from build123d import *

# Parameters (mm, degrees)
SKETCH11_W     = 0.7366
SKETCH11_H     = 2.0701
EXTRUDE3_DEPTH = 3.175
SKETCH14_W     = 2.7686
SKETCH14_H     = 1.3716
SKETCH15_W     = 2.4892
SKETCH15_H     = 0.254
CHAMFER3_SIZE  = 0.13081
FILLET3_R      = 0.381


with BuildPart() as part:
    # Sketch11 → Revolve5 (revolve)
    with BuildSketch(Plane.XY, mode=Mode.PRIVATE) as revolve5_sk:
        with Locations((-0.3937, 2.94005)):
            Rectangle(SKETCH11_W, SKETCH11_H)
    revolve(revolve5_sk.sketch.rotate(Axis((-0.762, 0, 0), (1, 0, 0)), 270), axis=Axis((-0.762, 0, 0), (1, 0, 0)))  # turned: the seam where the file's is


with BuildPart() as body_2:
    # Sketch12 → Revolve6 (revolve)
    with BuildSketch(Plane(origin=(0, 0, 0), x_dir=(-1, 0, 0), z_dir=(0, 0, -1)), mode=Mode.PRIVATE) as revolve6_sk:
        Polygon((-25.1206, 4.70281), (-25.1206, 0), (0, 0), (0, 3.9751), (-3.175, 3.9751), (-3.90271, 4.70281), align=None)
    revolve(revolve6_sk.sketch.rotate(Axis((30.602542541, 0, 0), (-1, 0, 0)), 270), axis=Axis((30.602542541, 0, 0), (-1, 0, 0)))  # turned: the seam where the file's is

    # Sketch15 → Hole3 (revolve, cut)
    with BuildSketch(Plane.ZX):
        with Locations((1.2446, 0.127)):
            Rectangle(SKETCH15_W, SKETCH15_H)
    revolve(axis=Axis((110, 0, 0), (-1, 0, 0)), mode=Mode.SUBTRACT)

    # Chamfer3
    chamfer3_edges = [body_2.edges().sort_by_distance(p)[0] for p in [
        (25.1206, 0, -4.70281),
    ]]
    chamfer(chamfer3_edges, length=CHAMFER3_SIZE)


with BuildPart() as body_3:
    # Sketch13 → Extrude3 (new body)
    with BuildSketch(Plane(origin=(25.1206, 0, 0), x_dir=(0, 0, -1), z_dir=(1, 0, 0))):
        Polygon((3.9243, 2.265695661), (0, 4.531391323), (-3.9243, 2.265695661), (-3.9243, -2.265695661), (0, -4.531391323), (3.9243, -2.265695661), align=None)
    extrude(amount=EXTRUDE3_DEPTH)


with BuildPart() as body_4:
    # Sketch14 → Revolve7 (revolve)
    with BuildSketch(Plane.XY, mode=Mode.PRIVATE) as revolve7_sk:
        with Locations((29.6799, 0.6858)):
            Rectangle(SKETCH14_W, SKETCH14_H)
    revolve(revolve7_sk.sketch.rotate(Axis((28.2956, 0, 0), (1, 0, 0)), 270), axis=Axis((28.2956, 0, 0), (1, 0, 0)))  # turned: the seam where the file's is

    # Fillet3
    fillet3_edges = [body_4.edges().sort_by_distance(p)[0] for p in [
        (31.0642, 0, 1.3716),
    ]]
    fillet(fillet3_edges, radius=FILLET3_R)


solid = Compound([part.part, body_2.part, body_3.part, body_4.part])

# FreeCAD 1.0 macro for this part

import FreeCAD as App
import Part
import Sketcher

V = App.Vector
Q = App.Units.Quantity


def edges_at(feature, points):
    """Names of the edges that pass closest to the given points."""
    edges = feature.Shape.Edges
    near = lambda p: min(range(len(edges)), key=lambda i: edges[i].distToShape(Part.Vertex(*p))[0])
    return sorted({f"Edge{near(p) + 1}" for p in points})

doc = App.newDocument("Part")
body = doc.addObject("PartDesign::Body", "Body")

# Sketch on XY plane
sketch1 = body.newObject("Sketcher::SketchObject", "Sketch")
sketch1.AttachmentSupport = (doc.getObject("XY_Plane"), [""])
sketch1.MapMode = "FlatFace"
sketch1.addGeometry([
    Part.LineSegment(V(-0.762, 3.9751, 0), V(-0.762, 1.905, 0)),
    Part.LineSegment(V(-0.762, 1.905, 0), V(-0.0254, 1.905, 0)),
    Part.LineSegment(V(-0.0254, 1.905, 0), V(-0.0254, 3.9751, 0)),
    Part.LineSegment(V(-0.0254, 3.9751, 0), V(-0.762, 3.9751, 0)),
], False)
sketch1.addConstraint([
    Sketcher.Constraint("Coincident", 0, 2, 1, 1),
    Sketcher.Constraint("Coincident", 1, 2, 2, 1),
    Sketcher.Constraint("Coincident", 2, 2, 3, 1),
    Sketcher.Constraint("Coincident", 3, 2, 0, 1),
    Sketcher.Constraint("Vertical", 0),
    Sketcher.Constraint("Horizontal", 1),
    Sketcher.Constraint("Vertical", 2),
    Sketcher.Constraint("Horizontal", 3),
    Sketcher.Constraint("DistanceX", 1, 1, 1, 2, Q("0.029 in")),
    Sketcher.Constraint("DistanceX", 0, 2, -1, 1, Q("0.03 in")),
    Sketcher.Constraint("DistanceY", 0, 2, 0, 1, Q("0.0815 in")),
    Sketcher.Constraint("DistanceY", -1, 1, 0, 2, Q("0.075 in")),
])
revolution = body.newObject("PartDesign::Revolution", "Revolution")
revolution.Profile = sketch1
revolution.ReferenceAxis = (sketch1, ["H_Axis"])
revolution.Angle = 360
body2 = doc.addObject("PartDesign::Body", "Body001")

# Sketch on XY plane
sketch2 = body2.newObject("Sketcher::SketchObject", "Sketch001")
sketch2.AttachmentSupport = (doc.getObject("XY_Plane001"), [""])
sketch2.MapMode = "FlatFace"
sketch2.addGeometry([
    Part.LineSegment(V(25.1206, 4.70281, 0), V(25.1206, 0, 0)),  # 0
    Part.LineSegment(V(25.1206, 0, 0), V(0, 0, 0)),  # 1
    Part.LineSegment(V(0, 0, 0), V(0, 3.9751, 0)),  # 2
    Part.LineSegment(V(0, 3.9751, 0), V(3.175, 3.9751, 0)),  # 3
    Part.LineSegment(V(3.175, 3.9751, 0), V(3.90271, 4.70281, 0)),  # 4
    Part.LineSegment(V(3.90271, 4.70281, 0), V(25.1206, 4.70281, 0)),  # 5
], False)
sketch2.addConstraint([
    Sketcher.Constraint("Coincident", 0, 2, 1, 1),
    Sketcher.Constraint("Coincident", 1, 2, 2, 1),
    Sketcher.Constraint("Coincident", 2, 2, 3, 1),
    Sketcher.Constraint("Coincident", 3, 2, 4, 1),
    Sketcher.Constraint("Coincident", 4, 2, 5, 1),
    Sketcher.Constraint("Coincident", 5, 2, 0, 1),
    Sketcher.Constraint("Vertical", 0),
    Sketcher.Constraint("Horizontal", 1),
    Sketcher.Constraint("Vertical", 2),
    Sketcher.Constraint("Horizontal", 3),
    Sketcher.Constraint("Horizontal", 5),
    Sketcher.Constraint("Coincident", 1, 2, -1, 1),
    Sketcher.Constraint("Angle", 4, Q("45 deg")),
    Sketcher.Constraint("DistanceX", 1, 2, 1, 1, Q("0.989 in")),
    Sketcher.Constraint("DistanceX", 3, 1, 3, 2, Q("0.125 in")),
    Sketcher.Constraint("DistanceY", 2, 1, 2, 2, Q("0.1565 in")),
    Sketcher.Constraint("DistanceX", 5, 1, 5, 2, 21.21789),
])
revolution2 = body2.newObject("PartDesign::Revolution", "Revolution001")
revolution2.Profile = sketch2
revolution2.ReferenceAxis = (sketch2, ["H_Axis"])
revolution2.Angle = 360

# Sketch on XZ plane
sketch3 = body2.newObject("Sketcher::SketchObject", "Sketch002")
sketch3.AttachmentSupport = (doc.getObject("XZ_Plane001"), [""])
sketch3.MapMode = "FlatFace"
sketch3.addGeometry([
    Part.LineSegment(V(0.254, 0, 0), V(0, 0, 0)),
    Part.LineSegment(V(0, 0, 0), V(0, 2.4892, 0)),
    Part.LineSegment(V(0, 2.4892, 0), V(0.254, 2.4892, 0)),
    Part.LineSegment(V(0.254, 2.4892, 0), V(0.254, 0, 0)),
], False)
sketch3.addConstraint([
    Sketcher.Constraint("Coincident", 0, 2, 1, 1),
    Sketcher.Constraint("Coincident", 1, 2, 2, 1),
    Sketcher.Constraint("Coincident", 2, 2, 3, 1),
    Sketcher.Constraint("Coincident", 3, 2, 0, 1),
    Sketcher.Constraint("Horizontal", 0),
    Sketcher.Constraint("Vertical", 1),
    Sketcher.Constraint("Horizontal", 2),
    Sketcher.Constraint("Vertical", 3),
    Sketcher.Constraint("Coincident", 0, 2, -1, 1),
    Sketcher.Constraint("DistanceX", 0, 2, 0, 1, Q("0.01 in")),
    Sketcher.Constraint("DistanceY", 1, 1, 1, 2, Q("0.098 in")),
])
groove = body2.newObject("PartDesign::Groove", "Groove")
groove.Profile = sketch3
groove.ReferenceAxis = (sketch3, ["H_Axis"])
groove.Angle = 360
doc.recompute()

chamfer = body2.newObject("PartDesign::Chamfer", "Chamfer")
chamfer.Base = (groove, edges_at(groove, [(25.121, 0, -4.703)]))
chamfer.Size = 0.13081
body3 = doc.addObject("PartDesign::Body", "Body002")

# Sketch on YZ plane
sketch4 = body3.newObject("Sketcher::SketchObject", "Sketch003")
sketch4.AttachmentSupport = (doc.getObject("YZ_Plane002"), [""])
sketch4.MapMode = "FlatFace"
sketch4.AttachmentOffset = App.Placement(V(0, 0, 0.989 * 25.4), App.Rotation())
sketch4.addGeometry([
    Part.LineSegment(V(2.265696, -3.9243, 0), V(4.531391, 0, 0)),  # 0
    Part.LineSegment(V(4.531391, 0, 0), V(2.265696, 3.9243, 0)),  # 1
    Part.LineSegment(V(2.265696, 3.9243, 0), V(-2.265696, 3.9243, 0)),  # 2
    Part.LineSegment(V(-2.265696, 3.9243, 0), V(-4.531391, 0, 0)),  # 3
    Part.LineSegment(V(-4.531391, 0, 0), V(-2.265696, -3.9243, 0)),  # 4
    Part.LineSegment(V(-2.265696, -3.9243, 0), V(2.265696, -3.9243, 0)),  # 5
], False)
sketch4.addConstraint([
    Sketcher.Constraint("Coincident", 0, 2, 1, 1),
    Sketcher.Constraint("Coincident", 1, 2, 2, 1),
    Sketcher.Constraint("Coincident", 2, 2, 3, 1),
    Sketcher.Constraint("Coincident", 3, 2, 4, 1),
    Sketcher.Constraint("Coincident", 4, 2, 5, 1),
    Sketcher.Constraint("Coincident", 5, 2, 0, 1),
    Sketcher.Constraint("Horizontal", 2),
    Sketcher.Constraint("Horizontal", 5),
    Sketcher.Constraint("Symmetric", 0, 2, 3, 2, -1, 1),
    Sketcher.Constraint("Symmetric", 1, 2, 4, 2, -1, 1),
    Sketcher.Constraint("PointOnObject", 0, 2, -1),
    Sketcher.Constraint("Parallel", 0, 3),
    Sketcher.Constraint("Vertical", 2, 2, 4, 2),
    Sketcher.Constraint("Angle", 0, Q("60 deg")),
    Sketcher.Constraint("DistanceY", 4, 2, 2, 2, Q("0.309 in")),
    Sketcher.Constraint("DistanceX", 2, 2, 2, 1, 4.531391),
])
pad1 = body3.newObject("PartDesign::Pad", "Pad")
pad1.Profile = sketch4
pad1.Length = Q("0.125 in")
body4 = doc.addObject("PartDesign::Body", "Body003")

# Sketch on XY plane
sketch5 = body4.newObject("Sketcher::SketchObject", "Sketch004")
sketch5.AttachmentSupport = (doc.getObject("XY_Plane003"), [""])
sketch5.MapMode = "FlatFace"
sketch5.addGeometry([
    Part.LineSegment(V(28.2956, 1.3716, 0), V(28.2956, 0, 0)),
    Part.LineSegment(V(28.2956, 0, 0), V(31.0642, 0, 0)),
    Part.LineSegment(V(31.0642, 0, 0), V(31.0642, 1.3716, 0)),
    Part.LineSegment(V(31.0642, 1.3716, 0), V(28.2956, 1.3716, 0)),
], False)
sketch5.addConstraint([
    Sketcher.Constraint("Coincident", 0, 2, 1, 1),
    Sketcher.Constraint("Coincident", 1, 2, 2, 1),
    Sketcher.Constraint("Coincident", 2, 2, 3, 1),
    Sketcher.Constraint("Coincident", 3, 2, 0, 1),
    Sketcher.Constraint("Vertical", 0),
    Sketcher.Constraint("Horizontal", 1),
    Sketcher.Constraint("Vertical", 2),
    Sketcher.Constraint("Horizontal", 3),
    Sketcher.Constraint("PointOnObject", 0, 2, -1),
    Sketcher.Constraint("DistanceX", 1, 1, 1, 2, Q("0.109 in")),
    Sketcher.Constraint("DistanceY", 0, 2, 0, 1, Q("0.054 in")),
    Sketcher.Constraint("DistanceX", -1, 1, 0, 2, Q("1.114 in")),
])
revolution3 = body4.newObject("PartDesign::Revolution", "Revolution002")
revolution3.Profile = sketch5
revolution3.ReferenceAxis = (sketch5, ["H_Axis"])
revolution3.Angle = 360
doc.recompute()

fillet = body4.newObject("PartDesign::Fillet", "Fillet")
fillet.Base = (revolution3, edges_at(revolution3, [(31.064, 0, 1.372)]))
fillet.Radius = Q("0.015 in")

doc.recompute()
